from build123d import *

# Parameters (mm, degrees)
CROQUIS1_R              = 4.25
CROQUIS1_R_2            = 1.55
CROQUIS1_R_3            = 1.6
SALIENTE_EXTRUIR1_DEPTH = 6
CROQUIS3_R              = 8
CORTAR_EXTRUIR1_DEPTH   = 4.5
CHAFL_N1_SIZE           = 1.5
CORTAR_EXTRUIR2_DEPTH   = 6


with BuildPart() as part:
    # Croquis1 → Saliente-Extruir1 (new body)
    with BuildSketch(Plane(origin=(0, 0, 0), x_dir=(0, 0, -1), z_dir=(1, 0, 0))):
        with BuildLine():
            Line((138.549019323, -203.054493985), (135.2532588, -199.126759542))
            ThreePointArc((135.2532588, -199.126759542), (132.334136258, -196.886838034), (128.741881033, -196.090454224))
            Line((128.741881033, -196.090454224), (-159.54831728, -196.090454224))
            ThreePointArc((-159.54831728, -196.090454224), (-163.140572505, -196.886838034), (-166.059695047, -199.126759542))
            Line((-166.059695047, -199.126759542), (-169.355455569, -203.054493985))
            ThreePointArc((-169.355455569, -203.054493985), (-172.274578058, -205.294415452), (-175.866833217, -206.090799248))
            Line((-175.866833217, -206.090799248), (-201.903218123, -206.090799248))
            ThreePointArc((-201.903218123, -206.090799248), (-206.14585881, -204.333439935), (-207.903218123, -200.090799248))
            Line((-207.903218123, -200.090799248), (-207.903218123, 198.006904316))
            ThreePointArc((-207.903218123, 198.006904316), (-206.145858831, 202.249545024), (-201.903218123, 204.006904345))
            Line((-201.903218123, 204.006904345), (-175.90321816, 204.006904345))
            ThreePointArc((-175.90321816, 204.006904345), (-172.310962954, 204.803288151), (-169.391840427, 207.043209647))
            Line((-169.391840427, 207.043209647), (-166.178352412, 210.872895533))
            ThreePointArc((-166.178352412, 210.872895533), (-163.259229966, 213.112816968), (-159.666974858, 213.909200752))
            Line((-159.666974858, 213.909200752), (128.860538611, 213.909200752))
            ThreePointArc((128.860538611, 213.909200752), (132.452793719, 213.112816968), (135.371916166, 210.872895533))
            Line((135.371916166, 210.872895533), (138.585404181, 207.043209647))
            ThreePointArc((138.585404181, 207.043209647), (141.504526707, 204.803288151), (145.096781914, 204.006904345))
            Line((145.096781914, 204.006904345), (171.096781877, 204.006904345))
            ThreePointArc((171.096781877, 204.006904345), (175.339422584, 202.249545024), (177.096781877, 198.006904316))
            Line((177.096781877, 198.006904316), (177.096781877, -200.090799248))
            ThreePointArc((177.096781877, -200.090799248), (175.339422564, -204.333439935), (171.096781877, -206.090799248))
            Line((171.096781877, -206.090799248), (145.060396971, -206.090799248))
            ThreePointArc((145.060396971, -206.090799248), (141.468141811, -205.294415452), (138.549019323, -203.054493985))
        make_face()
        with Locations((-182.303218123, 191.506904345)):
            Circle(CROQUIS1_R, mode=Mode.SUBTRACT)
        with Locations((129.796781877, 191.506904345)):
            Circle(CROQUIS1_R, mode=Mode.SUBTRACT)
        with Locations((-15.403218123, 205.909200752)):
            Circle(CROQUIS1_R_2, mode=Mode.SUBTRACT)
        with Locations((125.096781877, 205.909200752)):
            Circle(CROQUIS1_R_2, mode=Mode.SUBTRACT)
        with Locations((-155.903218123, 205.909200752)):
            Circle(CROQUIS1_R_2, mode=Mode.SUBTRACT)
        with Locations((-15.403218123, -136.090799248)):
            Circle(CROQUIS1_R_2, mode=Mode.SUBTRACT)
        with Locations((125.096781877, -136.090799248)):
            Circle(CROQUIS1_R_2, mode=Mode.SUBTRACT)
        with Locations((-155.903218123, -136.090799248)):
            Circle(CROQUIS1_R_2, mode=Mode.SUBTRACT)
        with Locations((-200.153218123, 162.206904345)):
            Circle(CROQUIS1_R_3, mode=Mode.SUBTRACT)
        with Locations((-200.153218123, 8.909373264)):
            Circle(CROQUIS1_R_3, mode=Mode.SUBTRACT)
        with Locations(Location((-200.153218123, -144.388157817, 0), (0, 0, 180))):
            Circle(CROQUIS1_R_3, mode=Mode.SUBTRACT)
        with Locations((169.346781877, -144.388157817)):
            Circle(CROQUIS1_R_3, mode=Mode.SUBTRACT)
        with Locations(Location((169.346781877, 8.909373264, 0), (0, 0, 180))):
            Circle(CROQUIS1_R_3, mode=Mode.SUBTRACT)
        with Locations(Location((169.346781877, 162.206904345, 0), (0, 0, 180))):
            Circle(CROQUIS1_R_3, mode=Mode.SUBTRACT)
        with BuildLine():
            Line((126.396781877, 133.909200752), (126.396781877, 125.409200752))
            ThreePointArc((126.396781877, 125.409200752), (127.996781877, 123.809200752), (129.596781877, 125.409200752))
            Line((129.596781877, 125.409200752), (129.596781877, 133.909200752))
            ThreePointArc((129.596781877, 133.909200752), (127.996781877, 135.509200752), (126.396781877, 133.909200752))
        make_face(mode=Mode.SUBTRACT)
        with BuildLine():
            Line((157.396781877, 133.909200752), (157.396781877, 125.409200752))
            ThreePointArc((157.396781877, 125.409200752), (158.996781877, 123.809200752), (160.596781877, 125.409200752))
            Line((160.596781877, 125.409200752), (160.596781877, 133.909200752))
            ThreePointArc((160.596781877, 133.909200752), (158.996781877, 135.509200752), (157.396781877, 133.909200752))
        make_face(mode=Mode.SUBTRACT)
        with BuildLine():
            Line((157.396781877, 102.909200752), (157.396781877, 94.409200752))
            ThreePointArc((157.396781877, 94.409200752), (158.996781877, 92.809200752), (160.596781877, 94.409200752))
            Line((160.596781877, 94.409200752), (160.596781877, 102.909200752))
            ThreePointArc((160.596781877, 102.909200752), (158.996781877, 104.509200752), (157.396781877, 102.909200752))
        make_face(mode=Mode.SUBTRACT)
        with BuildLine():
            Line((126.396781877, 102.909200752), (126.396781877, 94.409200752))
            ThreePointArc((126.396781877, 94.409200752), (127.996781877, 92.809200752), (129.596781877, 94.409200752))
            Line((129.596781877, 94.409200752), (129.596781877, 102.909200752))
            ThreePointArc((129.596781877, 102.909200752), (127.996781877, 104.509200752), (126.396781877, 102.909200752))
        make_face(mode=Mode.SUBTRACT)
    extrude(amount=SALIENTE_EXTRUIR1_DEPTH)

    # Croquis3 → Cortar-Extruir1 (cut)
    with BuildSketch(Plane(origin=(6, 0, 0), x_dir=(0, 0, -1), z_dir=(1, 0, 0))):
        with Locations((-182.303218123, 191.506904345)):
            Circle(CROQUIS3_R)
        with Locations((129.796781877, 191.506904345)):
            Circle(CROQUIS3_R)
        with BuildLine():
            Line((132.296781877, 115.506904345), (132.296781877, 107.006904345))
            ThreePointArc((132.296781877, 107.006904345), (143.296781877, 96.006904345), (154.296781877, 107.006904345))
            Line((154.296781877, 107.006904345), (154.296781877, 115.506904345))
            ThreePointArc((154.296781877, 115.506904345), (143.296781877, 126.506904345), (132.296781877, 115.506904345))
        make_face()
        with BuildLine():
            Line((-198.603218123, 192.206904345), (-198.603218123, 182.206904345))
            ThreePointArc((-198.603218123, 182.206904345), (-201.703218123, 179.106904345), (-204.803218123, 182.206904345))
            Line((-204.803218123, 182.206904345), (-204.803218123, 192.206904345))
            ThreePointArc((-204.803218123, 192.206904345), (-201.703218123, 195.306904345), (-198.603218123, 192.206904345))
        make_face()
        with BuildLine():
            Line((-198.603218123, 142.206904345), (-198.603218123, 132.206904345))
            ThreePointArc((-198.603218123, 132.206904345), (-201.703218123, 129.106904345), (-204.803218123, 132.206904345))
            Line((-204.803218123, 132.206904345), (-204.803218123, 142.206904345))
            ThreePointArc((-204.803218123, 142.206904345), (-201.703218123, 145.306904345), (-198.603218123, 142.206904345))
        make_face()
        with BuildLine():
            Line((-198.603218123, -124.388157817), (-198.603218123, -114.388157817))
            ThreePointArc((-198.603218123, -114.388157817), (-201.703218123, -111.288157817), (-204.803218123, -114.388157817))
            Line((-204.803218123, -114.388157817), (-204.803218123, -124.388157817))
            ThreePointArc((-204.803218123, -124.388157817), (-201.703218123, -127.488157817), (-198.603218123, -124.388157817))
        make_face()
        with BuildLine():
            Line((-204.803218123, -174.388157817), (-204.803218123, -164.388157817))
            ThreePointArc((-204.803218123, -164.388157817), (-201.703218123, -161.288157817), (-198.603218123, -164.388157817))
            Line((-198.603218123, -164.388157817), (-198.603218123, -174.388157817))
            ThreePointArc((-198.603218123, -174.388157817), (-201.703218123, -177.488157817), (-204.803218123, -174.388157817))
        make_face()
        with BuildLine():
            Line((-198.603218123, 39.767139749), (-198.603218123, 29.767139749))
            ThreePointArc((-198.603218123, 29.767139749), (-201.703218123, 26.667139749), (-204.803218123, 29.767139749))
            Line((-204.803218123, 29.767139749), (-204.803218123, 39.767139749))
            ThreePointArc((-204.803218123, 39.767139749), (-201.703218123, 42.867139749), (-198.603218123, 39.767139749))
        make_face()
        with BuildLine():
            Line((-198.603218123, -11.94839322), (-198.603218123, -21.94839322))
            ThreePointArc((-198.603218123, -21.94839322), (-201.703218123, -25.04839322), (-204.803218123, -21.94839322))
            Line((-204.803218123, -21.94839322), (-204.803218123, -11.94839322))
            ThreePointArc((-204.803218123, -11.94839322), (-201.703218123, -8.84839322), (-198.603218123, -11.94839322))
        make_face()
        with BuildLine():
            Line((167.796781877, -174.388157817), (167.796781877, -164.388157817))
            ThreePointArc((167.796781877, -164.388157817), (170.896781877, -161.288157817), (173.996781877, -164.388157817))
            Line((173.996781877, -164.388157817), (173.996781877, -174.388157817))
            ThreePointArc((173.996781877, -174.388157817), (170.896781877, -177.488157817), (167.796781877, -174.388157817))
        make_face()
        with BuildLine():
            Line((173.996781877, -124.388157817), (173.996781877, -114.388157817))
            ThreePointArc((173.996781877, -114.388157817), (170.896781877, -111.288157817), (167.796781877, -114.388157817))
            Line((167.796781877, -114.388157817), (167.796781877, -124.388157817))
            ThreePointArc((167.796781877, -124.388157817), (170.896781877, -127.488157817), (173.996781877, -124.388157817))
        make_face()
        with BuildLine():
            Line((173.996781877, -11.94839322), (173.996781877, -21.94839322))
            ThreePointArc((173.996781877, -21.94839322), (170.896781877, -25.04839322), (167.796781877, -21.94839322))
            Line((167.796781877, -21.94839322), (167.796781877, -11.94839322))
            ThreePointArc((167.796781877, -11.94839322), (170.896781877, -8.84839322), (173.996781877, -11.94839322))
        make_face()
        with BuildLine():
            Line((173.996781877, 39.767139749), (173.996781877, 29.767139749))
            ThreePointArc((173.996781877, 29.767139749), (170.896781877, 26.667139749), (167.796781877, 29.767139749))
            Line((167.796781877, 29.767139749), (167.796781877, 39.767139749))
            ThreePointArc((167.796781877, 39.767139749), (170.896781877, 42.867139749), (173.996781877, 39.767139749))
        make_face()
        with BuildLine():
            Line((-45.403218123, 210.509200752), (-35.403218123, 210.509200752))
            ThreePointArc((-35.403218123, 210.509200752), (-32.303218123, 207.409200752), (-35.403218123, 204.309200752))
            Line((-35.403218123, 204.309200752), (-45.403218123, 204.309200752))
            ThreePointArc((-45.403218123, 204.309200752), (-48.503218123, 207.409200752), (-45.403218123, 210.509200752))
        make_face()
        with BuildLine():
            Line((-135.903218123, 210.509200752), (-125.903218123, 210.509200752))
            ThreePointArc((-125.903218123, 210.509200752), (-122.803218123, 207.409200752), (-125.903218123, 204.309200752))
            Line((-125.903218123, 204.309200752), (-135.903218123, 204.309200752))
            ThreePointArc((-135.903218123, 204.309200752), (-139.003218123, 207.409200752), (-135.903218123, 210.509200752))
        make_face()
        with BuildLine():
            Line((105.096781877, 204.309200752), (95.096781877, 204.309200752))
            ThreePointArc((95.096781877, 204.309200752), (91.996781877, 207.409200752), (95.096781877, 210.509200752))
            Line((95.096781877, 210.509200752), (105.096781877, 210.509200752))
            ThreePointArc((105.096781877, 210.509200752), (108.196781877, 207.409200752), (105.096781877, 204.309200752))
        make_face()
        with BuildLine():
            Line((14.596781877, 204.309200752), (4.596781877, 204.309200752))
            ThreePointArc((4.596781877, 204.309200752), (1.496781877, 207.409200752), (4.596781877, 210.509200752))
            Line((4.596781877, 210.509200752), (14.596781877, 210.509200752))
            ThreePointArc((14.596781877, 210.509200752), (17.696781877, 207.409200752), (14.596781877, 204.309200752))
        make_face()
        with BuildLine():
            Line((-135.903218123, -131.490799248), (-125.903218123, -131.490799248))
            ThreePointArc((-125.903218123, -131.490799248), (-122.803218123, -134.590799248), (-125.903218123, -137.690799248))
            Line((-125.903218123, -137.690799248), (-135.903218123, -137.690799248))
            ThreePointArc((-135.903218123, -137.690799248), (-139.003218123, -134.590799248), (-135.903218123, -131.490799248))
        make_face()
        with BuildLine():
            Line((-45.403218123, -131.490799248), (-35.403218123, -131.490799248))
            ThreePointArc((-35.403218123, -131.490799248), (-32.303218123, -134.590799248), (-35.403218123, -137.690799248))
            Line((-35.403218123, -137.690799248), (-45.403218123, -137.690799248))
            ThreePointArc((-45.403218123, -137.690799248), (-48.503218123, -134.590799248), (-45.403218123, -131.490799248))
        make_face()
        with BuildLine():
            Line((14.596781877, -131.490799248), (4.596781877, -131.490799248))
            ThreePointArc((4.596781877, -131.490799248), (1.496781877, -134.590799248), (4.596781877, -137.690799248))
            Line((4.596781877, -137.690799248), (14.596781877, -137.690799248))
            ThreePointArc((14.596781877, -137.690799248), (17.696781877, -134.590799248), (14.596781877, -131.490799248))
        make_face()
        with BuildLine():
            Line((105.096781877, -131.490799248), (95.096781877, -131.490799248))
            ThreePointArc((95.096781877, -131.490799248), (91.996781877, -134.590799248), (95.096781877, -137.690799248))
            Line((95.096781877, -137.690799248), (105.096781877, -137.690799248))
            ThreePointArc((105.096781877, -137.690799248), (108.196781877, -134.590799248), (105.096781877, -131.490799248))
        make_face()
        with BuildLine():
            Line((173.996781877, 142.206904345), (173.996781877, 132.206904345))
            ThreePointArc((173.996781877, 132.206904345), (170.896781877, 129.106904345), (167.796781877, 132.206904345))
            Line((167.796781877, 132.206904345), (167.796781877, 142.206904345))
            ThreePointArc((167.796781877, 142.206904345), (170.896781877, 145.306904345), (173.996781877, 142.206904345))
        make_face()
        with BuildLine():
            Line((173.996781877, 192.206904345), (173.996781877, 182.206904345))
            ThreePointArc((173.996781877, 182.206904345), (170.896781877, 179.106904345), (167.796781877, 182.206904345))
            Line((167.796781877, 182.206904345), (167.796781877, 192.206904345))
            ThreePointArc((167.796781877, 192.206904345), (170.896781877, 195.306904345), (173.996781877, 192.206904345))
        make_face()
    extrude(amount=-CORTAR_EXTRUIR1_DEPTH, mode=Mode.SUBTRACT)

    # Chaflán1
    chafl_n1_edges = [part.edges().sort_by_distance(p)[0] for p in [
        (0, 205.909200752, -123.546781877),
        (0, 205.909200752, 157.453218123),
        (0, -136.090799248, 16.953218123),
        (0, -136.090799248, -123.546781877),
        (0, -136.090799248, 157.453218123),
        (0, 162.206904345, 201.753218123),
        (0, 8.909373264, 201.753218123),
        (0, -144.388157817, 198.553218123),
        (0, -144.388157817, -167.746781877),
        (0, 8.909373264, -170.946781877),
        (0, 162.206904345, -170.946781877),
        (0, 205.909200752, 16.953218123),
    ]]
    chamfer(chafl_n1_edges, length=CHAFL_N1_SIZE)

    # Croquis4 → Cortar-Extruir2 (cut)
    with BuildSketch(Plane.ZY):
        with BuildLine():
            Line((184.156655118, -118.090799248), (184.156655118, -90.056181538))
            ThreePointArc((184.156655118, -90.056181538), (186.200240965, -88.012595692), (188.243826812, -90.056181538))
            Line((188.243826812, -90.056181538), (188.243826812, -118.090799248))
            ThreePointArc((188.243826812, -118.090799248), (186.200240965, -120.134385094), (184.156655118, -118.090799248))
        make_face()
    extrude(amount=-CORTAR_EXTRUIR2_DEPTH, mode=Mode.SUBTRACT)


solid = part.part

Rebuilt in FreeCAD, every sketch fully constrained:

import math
import FreeCAD as App
import Part
import Sketcher
Q = App.Units.Quantity


def edges_at(feature, points):
    """Names of the edges that pass closest to the given points."""
    edges = feature.Shape.Edges
    near = lambda p: min(range(len(edges)), key=lambda i: edges[i].distToShape(Part.Vertex(*p))[0])
    return sorted({f"Edge{near(p) + 1}" for p in points})

doc = App.newDocument("Part")
body = doc.addObject("PartDesign::Body", "Body")

# Sketch on YZ plane
sketch1 = body.newObject("Sketcher::SketchObject", "Sketch")
sketch1.AttachmentSupport = (doc.getObject("YZ_Plane"), [""])
sketch1.MapMode = "FlatFace"
sketch1.addGeometry([
    Part.LineSegment(App.Vector(-199.1, -135.3, 0), App.Vector(-203.1, -138.5, 0)),  # 0
    Part.ArcOfCircle(Part.Circle(App.Vector(-197.6, -145.1, 0), App.Vector(0, 0, 1), 8.5), math.radians(130), math.radians(180)),  # 1
    Part.LineSegment(App.Vector(-206.1, -145.1, 0), App.Vector(-206.1, -171.1, 0)),  # 2
    Part.ArcOfCircle(Part.Circle(App.Vector(-200.1, -171.1, 0), App.Vector(0, 0, 1), 6), math.radians(180), math.radians(270)),  # 3
    Part.LineSegment(App.Vector(-200.1, -177.1, 0), App.Vector(198, -177.1, 0)),  # 4
    Part.ArcOfCircle(Part.Circle(App.Vector(198, -171.1, 0), App.Vector(0, 0, 1), 6), math.radians(-90), math.radians(0)),  # 5
    Part.LineSegment(App.Vector(204, -171.1, 0), App.Vector(204, -145.1, 0)),  # 6
    Part.ArcOfCircle(Part.Circle(App.Vector(212.5, -145.1, 0), App.Vector(0, 0, 1), 8.5), math.radians(130), math.radians(180)),  # 7
    Part.LineSegment(App.Vector(207, -138.6, 0), App.Vector(210.9, -135.4, 0)),  # 8
    Part.ArcOfCircle(Part.Circle(App.Vector(205.4, -128.9, 0), App.Vector(0, 0, 1), 8.5), math.radians(-50), math.radians(0)),  # 9
    Part.LineSegment(App.Vector(213.9, -128.9, 0), App.Vector(213.9, 159.7, 0)),  # 10
    Part.ArcOfCircle(Part.Circle(App.Vector(205.4, 159.7, 0), App.Vector(0, 0, 1), 8.5), math.radians(0), math.radians(50)),  # 11
    Part.LineSegment(App.Vector(210.9, 166.2, 0), App.Vector(207, 169.4, 0)),  # 12
    Part.ArcOfCircle(Part.Circle(App.Vector(212.5, 175.9, 0), App.Vector(0, 0, 1), 8.5), math.radians(180), math.radians(230)),  # 13
    Part.LineSegment(App.Vector(204, 175.9, 0), App.Vector(204, 201.9, 0)),  # 14
    Part.ArcOfCircle(Part.Circle(App.Vector(198, 201.9, 0), App.Vector(0, 0, 1), 6), math.radians(0), math.radians(90)),  # 15
    Part.LineSegment(App.Vector(198, 207.9, 0), App.Vector(-200.1, 207.9, 0)),  # 16
    Part.ArcOfCircle(Part.Circle(App.Vector(-200.1, 201.9, 0), App.Vector(0, 0, 1), 6), math.radians(90), math.radians(180)),  # 17
    Part.LineSegment(App.Vector(-206.1, 201.9, 0), App.Vector(-206.1, 175.9, 0)),  # 18
    Part.ArcOfCircle(Part.Circle(App.Vector(-197.6, 175.9, 0), App.Vector(0, 0, 1), 8.5), math.radians(-180), math.radians(-130)),  # 19
    Part.LineSegment(App.Vector(-203.1, 169.4, 0), App.Vector(-199.1, 166.1, 0)),  # 20
    Part.ArcOfCircle(Part.Circle(App.Vector(-204.6, 159.5, 0), App.Vector(0, 0, 1), 8.5), math.radians(0), math.radians(50)),  # 21
    Part.LineSegment(App.Vector(-196.1, 159.5, 0), App.Vector(-196.1, -128.7, 0)),  # 22
    Part.ArcOfCircle(Part.Circle(App.Vector(-204.6, -128.7, 0), App.Vector(0, 0, 1), 8.5), math.radians(-50), math.radians(0)),  # 23
    Part.Circle(App.Vector(-144.4, -169.3, 0), App.Vector(0, 0, 1), 1.6),  # 24
    Part.Circle(App.Vector(-136.1, -125.1, 0), App.Vector(0, 0, 1), 1.6),  # 25
    Part.Circle(App.Vector(8.9, -169.3, 0), App.Vector(0, 0, 1), 1.6),  # 26
    Part.Circle(App.Vector(-136.1, 15.4, 0), App.Vector(0, 0, 1), 1.6),  # 27
    Part.Circle(App.Vector(-136.1, 155.9, 0), App.Vector(0, 0, 1), 1.6),  # 28
    Part.Circle(App.Vector(-144.4, 200.2, 0), App.Vector(0, 0, 1), 1.6),  # 29
    Part.Circle(App.Vector(8.9, 200.2, 0), App.Vector(0, 0, 1), 1.6),  # 30
    Part.ArcOfCircle(Part.Circle(App.Vector(102.9, -159, 0), App.Vector(0, 0, 1), 1.6), math.radians(-90), math.radians(90)),  # 31
    Part.LineSegment(App.Vector(102.9, -160.6, 0), App.Vector(94.4, -160.6, 0)),  # 32
    Part.ArcOfCircle(Part.Circle(App.Vector(94.4, -159, 0), App.Vector(0, 0, 1), 1.6), math.radians(90), math.radians(270)),  # 33
    Part.LineSegment(App.Vector(94.4, -157.4, 0), App.Vector(102.9, -157.4, 0)),  # 34
    Part.ArcOfCircle(Part.Circle(App.Vector(102.9, -128, 0), App.Vector(0, 0, 1), 1.6), math.radians(-90), math.radians(90)),  # 35
    Part.LineSegment(App.Vector(102.9, -129.6, 0), App.Vector(94.4, -129.6, 0)),  # 36
    Part.ArcOfCircle(Part.Circle(App.Vector(94.4, -128, 0), App.Vector(0, 0, 1), 1.6), math.radians(90), math.radians(270)),  # 37
    Part.LineSegment(App.Vector(94.4, -126.4, 0), App.Vector(102.9, -126.4, 0)),  # 38
    Part.ArcOfCircle(Part.Circle(App.Vector(133.9, -159, 0), App.Vector(0, 0, 1), 1.6), math.radians(-90), math.radians(90)),  # 39
    Part.LineSegment(App.Vector(133.9, -160.6, 0), App.Vector(125.4, -160.6, 0)),  # 40
    Part.ArcOfCircle(Part.Circle(App.Vector(125.4, -159, 0), App.Vector(0, 0, 1), 1.6), math.radians(90), math.radians(270)),  # 41
    Part.LineSegment(App.Vector(125.4, -157.4, 0), App.Vector(133.9, -157.4, 0)),  # 42
    Part.ArcOfCircle(Part.Circle(App.Vector(133.9, -128, 0), App.Vector(0, 0, 1), 1.6), math.radians(-90), math.radians(90)),  # 43
    Part.LineSegment(App.Vector(133.9, -129.6, 0), App.Vector(125.4, -129.6, 0)),  # 44
    Part.ArcOfCircle(Part.Circle(App.Vector(125.4, -128, 0), App.Vector(0, 0, 1), 1.6), math.radians(90), math.radians(270)),  # 45
    Part.LineSegment(App.Vector(125.4, -126.4, 0), App.Vector(133.9, -126.4, 0)),  # 46
    Part.Circle(App.Vector(162.2, -169.3, 0), App.Vector(0, 0, 1), 1.6),  # 47
    Part.Circle(App.Vector(191.5, -129.8, 0), App.Vector(0, 0, 1), 4.2),  # 48
    Part.Circle(App.Vector(205.9, -125.1, 0), App.Vector(0, 0, 1), 1.6),  # 49
    Part.Circle(App.Vector(205.9, 15.4, 0), App.Vector(0, 0, 1), 1.6),  # 50
    Part.Circle(App.Vector(162.2, 200.2, 0), App.Vector(0, 0, 1), 1.6),  # 51
    Part.Circle(App.Vector(205.9, 155.9, 0), App.Vector(0, 0, 1), 1.6),  # 52
    Part.Circle(App.Vector(191.5, 182.3, 0), App.Vector(0, 0, 1), 4.2),  # 53
], False)
sketch1.addConstraint([
    Sketcher.Constraint("Tangent", 0, 2, 1, 1),
    Sketcher.Constraint("Tangent", 1, 2, 2, 1),
    Sketcher.Constraint("Tangent", 2, 2, 3, 1),
    Sketcher.Constraint("Tangent", 3, 2, 4, 1),
    Sketcher.Constraint("Tangent", 4, 2, 5, 1),
    Sketcher.Constraint("Tangent", 5, 2, 6, 1),
    Sketcher.Constraint("Tangent", 6, 2, 7, 2),
    Sketcher.Constraint("Tangent", 7, 1, 8, 1),
    Sketcher.Constraint("Tangent", 8, 2, 9, 1),
    Sketcher.Constraint("Tangent", 9, 2, 10, 1),
    Sketcher.Constraint("Tangent", 10, 2, 11, 1),
    Sketcher.Constraint("Tangent", 11, 2, 12, 1),
    Sketcher.Constraint("Tangent", 12, 2, 13, 2),
    Sketcher.Constraint("Tangent", 13, 1, 14, 1),
    Sketcher.Constraint("Tangent", 14, 2, 15, 1),
    Sketcher.Constraint("Tangent", 15, 2, 16, 1),
    Sketcher.Constraint("Tangent", 16, 2, 17, 1),
    Sketcher.Constraint("Tangent", 17, 2, 18, 1),
    Sketcher.Constraint("Tangent", 18, 2, 19, 1),
    Sketcher.Constraint("Tangent", 19, 2, 20, 1),
    Sketcher.Constraint("Tangent", 20, 2, 21, 2),
    Sketcher.Constraint("Tangent", 21, 1, 22, 1),
    Sketcher.Constraint("Tangent", 22, 2, 23, 2),
    Sketcher.Constraint("Tangent", 23, 1, 0, 1),
    Sketcher.Constraint("Tangent", 31, 1, 32, 1),
    Sketcher.Constraint("Tangent", 32, 2, 33, 2),
    Sketcher.Constraint("Tangent", 33, 1, 34, 1),
    Sketcher.Constraint("Tangent", 34, 2, 31, 2),
    Sketcher.Constraint("Tangent", 35, 1, 36, 1),
    Sketcher.Constraint("Tangent", 36, 2, 37, 2),
    Sketcher.Constraint("Tangent", 37, 1, 38, 1),
    Sketcher.Constraint("Tangent", 38, 2, 35, 2),
    Sketcher.Constraint("Tangent", 39, 1, 40, 1),
    Sketcher.Constraint("Tangent", 40, 2, 41, 2),
    Sketcher.Constraint("Tangent", 41, 1, 42, 1),
    Sketcher.Constraint("Tangent", 42, 2, 39, 2),
    Sketcher.Constraint("Tangent", 43, 1, 44, 1),
    Sketcher.Constraint("Tangent", 44, 2, 45, 2),
    Sketcher.Constraint("Tangent", 45, 1, 46, 1),
    Sketcher.Constraint("Tangent", 46, 2, 43, 2),
    Sketcher.Constraint("Vertical", 2),
    Sketcher.Constraint("Horizontal", 4),
    Sketcher.Constraint("Vertical", 6),
    Sketcher.Constraint("Vertical", 10),
    Sketcher.Constraint("Vertical", 14),
    Sketcher.Constraint("Horizontal", 16),
    Sketcher.Constraint("Vertical", 18),
    Sketcher.Constraint("Vertical", 22),
    Sketcher.Constraint("Horizontal", 32),
    Sketcher.Constraint("Horizontal", 34),
    Sketcher.Constraint("Horizontal", 36),
    Sketcher.Constraint("Horizontal", 38),
    Sketcher.Constraint("Horizontal", 40),
    Sketcher.Constraint("Horizontal", 42),
    Sketcher.Constraint("Horizontal", 44),
    Sketcher.Constraint("Horizontal", 46),
    Sketcher.Constraint("Equal", 3, 5),
    Sketcher.Constraint("Equal", 1, 7),
    Sketcher.Constraint("Equal", 7, 9),
    Sketcher.Constraint("Equal", 9, 11),
    Sketcher.Constraint("Equal", 11, 13),
    Sketcher.Constraint("Equal", 5, 15),
    Sketcher.Constraint("Equal", 15, 17),
    Sketcher.Constraint("Equal", 13, 19),
    Sketcher.Constraint("Equal", 19, 21),
    Sketcher.Constraint("Equal", 21, 23),
    Sketcher.Constraint("Equal", 24, 26),
    Sketcher.Constraint("Equal", 25, 27),
    Sketcher.Constraint("Equal", 27, 28),
    Sketcher.Constraint("Equal", 26, 29),
    Sketcher.Constraint("Equal", 29, 30),
    Sketcher.Constraint("Equal", 30, 31),
    Sketcher.Constraint("Equal", 33, 35),
    Sketcher.Constraint("Equal", 37, 39),
    Sketcher.Constraint("Equal", 41, 43),
    Sketcher.Constraint("Equal", 45, 47),
    Sketcher.Constraint("Equal", 28, 49),
    Sketcher.Constraint("Equal", 49, 50),
    Sketcher.Constraint("Equal", 47, 51),
    Sketcher.Constraint("Equal", 50, 52),
    Sketcher.Constraint("Equal", 48, 53),
    Sketcher.Constraint("Parallel", 0, 8),
    Sketcher.Constraint("Parallel", 12, 20),
    Sketcher.Constraint("Horizontal", 24, 3, 26, 3),
    Sketcher.Constraint("Horizontal", 29, 3, 30, 3),
    Sketcher.Constraint("Horizontal", 33, 3, 39, 3),
    Sketcher.Constraint("Horizontal", 37, 3, 43, 3),
    Sketcher.Constraint("Horizontal", 26, 3, 47, 3),
    Sketcher.Constraint("Horizontal", 25, 3, 49, 3),
    Sketcher.Constraint("Horizontal", 27, 3, 50, 3),
    Sketcher.Constraint("Horizontal", 30, 3, 51, 3),
    Sketcher.Constraint("Horizontal", 28, 3, 52, 3),
    Sketcher.Constraint("Vertical", 7, 3, 13, 3),
    Sketcher.Constraint("Vertical", 3, 3, 17, 3),
    Sketcher.Constraint("Vertical", 25, 3, 27, 3),
    Sketcher.Constraint("Vertical", 27, 3, 28, 3),
    Sketcher.Constraint("Vertical", 24, 3, 29, 3),
    Sketcher.Constraint("Vertical", 26, 3, 30, 3),
    Sketcher.Constraint("Vertical", 31, 3, 35, 3),
    Sketcher.Constraint("Vertical", 33, 3, 37, 3),
    Sketcher.Constraint("Vertical", 39, 3, 43, 3),
    Sketcher.Constraint("Vertical", 41, 3, 45, 3),
    Sketcher.Constraint("Vertical", 49, 3, 50, 3),
    Sketcher.Constraint("Vertical", 47, 3, 51, 3),
    Sketcher.Constraint("Vertical", 50, 3, 52, 3),
    Sketcher.Constraint("Vertical", 48, 3, 53, 3),
    Sketcher.Constraint("Vertical", 8, 2, 11, 2),
    Sketcher.Constraint("Equal", 38, 40),
    Sketcher.Constraint("Equal", 6, 14),
    Sketcher.Constraint("Equal", 2, 18),
    Sketcher.Constraint("Radius", 3, 6.0),
    Sketcher.Constraint("Diameter", 24, 3.2),
    Sketcher.Constraint("Diameter", 25, 3.1),
    Sketcher.Constraint("Diameter", 48, 8.5),
    Sketcher.Constraint("Radius", 1, 8.5),
    Sketcher.Constraint("DistanceY", 6, 1, 6, 2, 26.0),
    Sketcher.Constraint("Angle", 0, Q("-140 deg")),
    Sketcher.Constraint("DistanceX", 32, 2, 32, 1, 8.5),
    Sketcher.Constraint("DistanceY", 22, 2, 22, 1, 288.290198),
    Sketcher.Constraint("Distance", 8, 4.9993),
    Sketcher.Constraint("DistanceX", 1, 3, -1, 1, 197.590799),
    Sketcher.Constraint("DistanceX", -1, 1, 9, 3, 205.409201),
    Sketcher.Constraint("DistanceX", 25, 3, -1, 1, 136.090799),
    Sketcher.Constraint("DistanceX", -1, 1, 31, 3, 102.909201),
    Sketcher.Constraint("DistanceX", -1, 1, 39, 3, 133.909201),
    Sketcher.Constraint("DistanceX", -1, 1, 49, 3, 205.909201),
    Sketcher.Constraint("DistanceY", 2, 2, 2, 1, 26.036385),
    Sketcher.Constraint("DistanceY", 10, 1, 10, 2, 288.527513),
    Sketcher.Constraint("DistanceY", 3, 3, -1, 1, 171.096782),
    Sketcher.Constraint("DistanceY", 24, 3, -1, 1, 169.346782),
    Sketcher.Constraint("DistanceY", 25, 3, -1, 1, 125.096782),
    Sketcher.Constraint("DistanceY", -1, 1, 27, 3, 15.403218),
    Sketcher.Constraint("DistanceY", -1, 1, 28, 3, 155.903218),
    Sketcher.Constraint("DistanceY", -1, 1, 29, 3, 200.153218),
    Sketcher.Constraint("DistanceY", 31, 3, -1, 1, 158.996782),
    Sketcher.Constraint("DistanceY", 35, 3, -1, 1, 127.996782),
    Sketcher.Constraint("DistanceY", 48, 3, -1, 1, 129.796782),
    Sketcher.Constraint("DistanceY", -1, 1, 53, 3, 182.303218),
    Sketcher.Constraint("DistanceX", 24, 3, -1, 1, 144.388158),
    Sketcher.Constraint("DistanceX", -1, 1, 26, 3, 8.909373),
    Sketcher.Constraint("DistanceX", -1, 1, 47, 3, 162.206904),
    Sketcher.Constraint("DistanceX", -1, 1, 48, 3, 191.506904),
])
pad1 = body.newObject("PartDesign::Pad", "Pad")
pad1.Profile = sketch1
pad1.Length = 6

# Sketch on YZ plane
sketch2 = body.newObject("Sketcher::SketchObject", "Sketch001")
sketch2.AttachmentSupport = (doc.getObject("YZ_Plane"), [""])
sketch2.MapMode = "FlatFace"
sketch2.AttachmentOffset = App.Placement(App.Vector(0, 0, 6), App.Rotation())
sketch2.addGeometry([
    Part.Circle(App.Vector(191.5, 182.3, 0), App.Vector(0, 0, 1), 8),  # 0
    Part.Circle(App.Vector(191.5, -129.8, 0), App.Vector(0, 0, 1), 8),  # 1
    Part.LineSegment(App.Vector(115.5, -132.3, 0), App.Vector(107, -132.3, 0)),  # 2
    Part.ArcOfCircle(Part.Circle(App.Vector(107, -143.3, 0), App.Vector(0, 0, 1), 11), math.radians(90), math.radians(270)),  # 3
    Part.LineSegment(App.Vector(107, -154.3, 0), App.Vector(115.5, -154.3, 0)),  # 4
    Part.ArcOfCircle(Part.Circle(App.Vector(115.5, -143.3, 0), App.Vector(0, 0, 1), 11), math.radians(-90), math.radians(90)),  # 5
    Part.LineSegment(App.Vector(182.2, 198.6, 0), App.Vector(192.2, 198.6, 0)),  # 6
    Part.ArcOfCircle(Part.Circle(App.Vector(192.2, 201.7, 0), App.Vector(0, 0, 1), 3.1), math.radians(-90), math.radians(90)),  # 7
    Part.LineSegment(App.Vector(192.2, 204.8, 0), App.Vector(182.2, 204.8, 0)),  # 8
    Part.ArcOfCircle(Part.Circle(App.Vector(182.2, 201.7, 0), App.Vector(0, 0, 1), 3.1), math.radians(90), math.radians(270)),  # 9
    Part.LineSegment(App.Vector(132.2, 198.6, 0), App.Vector(142.2, 198.6, 0)),  # 10
    Part.ArcOfCircle(Part.Circle(App.Vector(142.2, 201.7, 0), App.Vector(0, 0, 1), 3.1), math.radians(-90), math.radians(90)),  # 11
    Part.LineSegment(App.Vector(142.2, 204.8, 0), App.Vector(132.2, 204.8, 0)),  # 12
    Part.ArcOfCircle(Part.Circle(App.Vector(132.2, 201.7, 0), App.Vector(0, 0, 1), 3.1), math.radians(90), math.radians(270)),  # 13
    Part.LineSegment(App.Vector(-124.4, 198.6, 0), App.Vector(-114.4, 198.6, 0)),  # 14
    Part.ArcOfCircle(Part.Circle(App.Vector(-114.4, 201.7, 0), App.Vector(0, 0, 1), 3.1), math.radians(-90), math.radians(90)),  # 15
    Part.LineSegment(App.Vector(-114.4, 204.8, 0), App.Vector(-124.4, 204.8, 0)),  # 16
    Part.ArcOfCircle(Part.Circle(App.Vector(-124.4, 201.7, 0), App.Vector(0, 0, 1), 3.1), math.radians(90), math.radians(270)),  # 17
    Part.LineSegment(App.Vector(-164.4, 204.8, 0), App.Vector(-174.4, 204.8, 0)),  # 18
    Part.ArcOfCircle(Part.Circle(App.Vector(-174.4, 201.7, 0), App.Vector(0, 0, 1), 3.1), math.radians(90), math.radians(270)),  # 19
    Part.LineSegment(App.Vector(-174.4, 198.6, 0), App.Vector(-164.4, 198.6, 0)),  # 20
    Part.ArcOfCircle(Part.Circle(App.Vector(-164.4, 201.7, 0), App.Vector(0, 0, 1), 3.1), math.radians(-90), math.radians(90)),  # 21
    Part.LineSegment(App.Vector(29.8, 198.6, 0), App.Vector(39.8, 198.6, 0)),  # 22
    Part.ArcOfCircle(Part.Circle(App.Vector(39.8, 201.7, 0), App.Vector(0, 0, 1), 3.1), math.radians(-90), math.radians(90)),  # 23
    Part.LineSegment(App.Vector(39.8, 204.8, 0), App.Vector(29.8, 204.8, 0)),  # 24
    Part.ArcOfCircle(Part.Circle(App.Vector(29.8, 201.7, 0), App.Vector(0, 0, 1), 3.1), math.radians(90), math.radians(270)),  # 25
    Part.LineSegment(App.Vector(-21.9, 198.6, 0), App.Vector(-11.9, 198.6, 0)),  # 26
    Part.ArcOfCircle(Part.Circle(App.Vector(-11.9, 201.7, 0), App.Vector(0, 0, 1), 3.1), math.radians(-90), math.radians(90)),  # 27
    Part.LineSegment(App.Vector(-11.9, 204.8, 0), App.Vector(-21.9, 204.8, 0)),  # 28
    Part.ArcOfCircle(Part.Circle(App.Vector(-21.9, 201.7, 0), App.Vector(0, 0, 1), 3.1), math.radians(90), math.radians(270)),  # 29
    Part.LineSegment(App.Vector(-164.4, -167.8, 0), App.Vector(-174.4, -167.8, 0)),  # 30
    Part.ArcOfCircle(Part.Circle(App.Vector(-174.4, -170.9, 0), App.Vector(0, 0, 1), 3.1), math.radians(90), math.radians(270)),  # 31
    Part.LineSegment(App.Vector(-174.4, -174, 0), App.Vector(-164.4, -174, 0)),  # 32
    Part.ArcOfCircle(Part.Circle(App.Vector(-164.4, -170.9, 0), App.Vector(0, 0, 1), 3.1), math.radians(-90), math.radians(90)),  # 33
    Part.LineSegment(App.Vector(-124.4, -174, 0), App.Vector(-114.4, -174, 0)),  # 34
    Part.ArcOfCircle(Part.Circle(App.Vector(-114.4, -170.9, 0), App.Vector(0, 0, 1), 3.1), math.radians(-90), math.radians(90)),  # 35
    Part.LineSegment(App.Vector(-114.4, -167.8, 0), App.Vector(-124.4, -167.8, 0)),  # 36
    Part.ArcOfCircle(Part.Circle(App.Vector(-124.4, -170.9, 0), App.Vector(0, 0, 1), 3.1), math.radians(90), math.radians(270)),  # 37
    Part.LineSegment(App.Vector(-21.9, -174, 0), App.Vector(-11.9, -174, 0)),  # 38
    Part.ArcOfCircle(Part.Circle(App.Vector(-11.9, -170.9, 0), App.Vector(0, 0, 1), 3.1), math.radians(-90), math.radians(90)),  # 39
    Part.LineSegment(App.Vector(-11.9, -167.8, 0), App.Vector(-21.9, -167.8, 0)),  # 40
    Part.ArcOfCircle(Part.Circle(App.Vector(-21.9, -170.9, 0), App.Vector(0, 0, 1), 3.1), math.radians(90), math.radians(270)),  # 41
    Part.LineSegment(App.Vector(29.8, -174, 0), App.Vector(39.8, -174, 0)),  # 42
    Part.ArcOfCircle(Part.Circle(App.Vector(39.8, -170.9, 0), App.Vector(0, 0, 1), 3.1), math.radians(-90), math.radians(90)),  # 43
    Part.LineSegment(App.Vector(39.8, -167.8, 0), App.Vector(29.8, -167.8, 0)),  # 44
    Part.ArcOfCircle(Part.Circle(App.Vector(29.8, -170.9, 0), App.Vector(0, 0, 1), 3.1), math.radians(90), math.radians(270)),  # 45
    Part.LineSegment(App.Vector(210.5, 35.4, 0), App.Vector(210.5, 45.4, 0)),  # 46
    Part.ArcOfCircle(Part.Circle(App.Vector(207.4, 45.4, 0), App.Vector(0, 0, 1), 3.1), math.radians(0), math.radians(180)),  # 47
    Part.LineSegment(App.Vector(204.3, 45.4, 0), App.Vector(204.3, 35.4, 0)),  # 48
    Part.ArcOfCircle(Part.Circle(App.Vector(207.4, 35.4, 0), App.Vector(0, 0, 1), 3.1), math.radians(180), math.radians(360)),  # 49
    Part.LineSegment(App.Vector(210.5, 125.9, 0), App.Vector(210.5, 135.9, 0)),  # 50
    Part.ArcOfCircle(Part.Circle(App.Vector(207.4, 135.9, 0), App.Vector(0, 0, 1), 3.1), math.radians(0), math.radians(180)),  # 51
    Part.LineSegment(App.Vector(204.3, 135.9, 0), App.Vector(204.3, 125.9, 0)),  # 52
    Part.ArcOfCircle(Part.Circle(App.Vector(207.4, 125.9, 0), App.Vector(0, 0, 1), 3.1), math.radians(180), math.radians(360)),  # 53
    Part.LineSegment(App.Vector(204.3, -95.1, 0), App.Vector(204.3, -105.1, 0)),  # 54
    Part.ArcOfCircle(Part.Circle(App.Vector(207.4, -105.1, 0), App.Vector(0, 0, 1), 3.1), math.radians(180), math.radians(360)),  # 55
    Part.LineSegment(App.Vector(210.5, -105.1, 0), App.Vector(210.5, -95.1, 0)),  # 56
    Part.ArcOfCircle(Part.Circle(App.Vector(207.4, -95.1, 0), App.Vector(0, 0, 1), 3.1), math.radians(0), math.radians(180)),  # 57
    Part.LineSegment(App.Vector(204.3, -4.6, 0), App.Vector(204.3, -14.6, 0)),  # 58
    Part.ArcOfCircle(Part.Circle(App.Vector(207.4, -14.6, 0), App.Vector(0, 0, 1), 3.1), math.radians(180), math.radians(360)),  # 59
    Part.LineSegment(App.Vector(210.5, -14.6, 0), App.Vector(210.5, -4.6, 0)),  # 60
    Part.ArcOfCircle(Part.Circle(App.Vector(207.4, -4.6, 0), App.Vector(0, 0, 1), 3.1), math.radians(0), math.radians(180)),  # 61
    Part.LineSegment(App.Vector(-131.5, 125.9, 0), App.Vector(-131.5, 135.9, 0)),  # 62
    Part.ArcOfCircle(Part.Circle(App.Vector(-134.6, 135.9, 0), App.Vector(0, 0, 1), 3.1), math.radians(0), math.radians(180)),  # 63
    Part.LineSegment(App.Vector(-137.7, 135.9, 0), App.Vector(-137.7, 125.9, 0)),  # 64
    Part.ArcOfCircle(Part.Circle(App.Vector(-134.6, 125.9, 0), App.Vector(0, 0, 1), 3.1), math.radians(180), math.radians(360)),  # 65
    Part.LineSegment(App.Vector(-131.5, 35.4, 0), App.Vector(-131.5, 45.4, 0)),  # 66
    Part.ArcOfCircle(Part.Circle(App.Vector(-134.6, 45.4, 0), App.Vector(0, 0, 1), 3.1), math.radians(0), math.radians(180)),  # 67
    Part.LineSegment(App.Vector(-137.7, 45.4, 0), App.Vector(-137.7, 35.4, 0)),  # 68
    Part.ArcOfCircle(Part.Circle(App.Vector(-134.6, 35.4, 0), App.Vector(0, 0, 1), 3.1), math.radians(180), math.radians(360)),  # 69
    Part.LineSegment(App.Vector(-131.5, -14.6, 0), App.Vector(-131.5, -4.6, 0)),  # 70
    Part.ArcOfCircle(Part.Circle(App.Vector(-134.6, -4.6, 0), App.Vector(0, 0, 1), 3.1), math.radians(0), math.radians(180)),  # 71
    Part.LineSegment(App.Vector(-137.7, -4.6, 0), App.Vector(-137.7, -14.6, 0)),  # 72
    Part.ArcOfCircle(Part.Circle(App.Vector(-134.6, -14.6, 0), App.Vector(0, 0, 1), 3.1), math.radians(180), math.radians(360)),  # 73
    Part.LineSegment(App.Vector(-131.5, -105.1, 0), App.Vector(-131.5, -95.1, 0)),  # 74
    Part.ArcOfCircle(Part.Circle(App.Vector(-134.6, -95.1, 0), App.Vector(0, 0, 1), 3.1), math.radians(0), math.radians(180)),  # 75
    Part.LineSegment(App.Vector(-137.7, -95.1, 0), App.Vector(-137.7, -105.1, 0)),  # 76
    Part.ArcOfCircle(Part.Circle(App.Vector(-134.6, -105.1, 0), App.Vector(0, 0, 1), 3.1), math.radians(180), math.radians(360)),  # 77
    Part.LineSegment(App.Vector(132.2, -174, 0), App.Vector(142.2, -174, 0)),  # 78
    Part.ArcOfCircle(Part.Circle(App.Vector(142.2, -170.9, 0), App.Vector(0, 0, 1), 3.1), math.radians(-90), math.radians(90)),  # 79
    Part.LineSegment(App.Vector(142.2, -167.8, 0), App.Vector(132.2, -167.8, 0)),  # 80
    Part.ArcOfCircle(Part.Circle(App.Vector(132.2, -170.9, 0), App.Vector(0, 0, 1), 3.1), math.radians(90), math.radians(270)),  # 81
    Part.LineSegment(App.Vector(182.2, -174, 0), App.Vector(192.2, -174, 0)),  # 82
    Part.ArcOfCircle(Part.Circle(App.Vector(192.2, -170.9, 0), App.Vector(0, 0, 1), 3.1), math.radians(-90), math.radians(90)),  # 83
    Part.LineSegment(App.Vector(192.2, -167.8, 0), App.Vector(182.2, -167.8, 0)),  # 84
    Part.ArcOfCircle(Part.Circle(App.Vector(182.2, -170.9, 0), App.Vector(0, 0, 1), 3.1), math.radians(90), math.radians(270)),  # 85
], False)
sketch2.addConstraint([
    Sketcher.Constraint("Tangent", 2, 2, 3, 1),
    Sketcher.Constraint("Tangent", 3, 2, 4, 1),
    Sketcher.Constraint("Tangent", 4, 2, 5, 1),
    Sketcher.Constraint("Tangent", 5, 2, 2, 1),
    Sketcher.Constraint("Tangent", 6, 2, 7, 1),
    Sketcher.Constraint("Tangent", 7, 2, 8, 1),
    Sketcher.Constraint("Tangent", 8, 2, 9, 1),
    Sketcher.Constraint("Tangent", 9, 2, 6, 1),
    Sketcher.Constraint("Tangent", 10, 2, 11, 1),
    Sketcher.Constraint("Tangent", 11, 2, 12, 1),
    Sketcher.Constraint("Tangent", 12, 2, 13, 1),
    Sketcher.Constraint("Tangent", 13, 2, 10, 1),
    Sketcher.Constraint("Tangent", 14, 2, 15, 1),
    Sketcher.Constraint("Tangent", 15, 2, 16, 1),
    Sketcher.Constraint("Tangent", 16, 2, 17, 1),
    Sketcher.Constraint("Tangent", 17, 2, 14, 1),
    Sketcher.Constraint("Tangent", 18, 2, 19, 1),
    Sketcher.Constraint("Tangent", 19, 2, 20, 1),
    Sketcher.Constraint("Tangent", 20, 2, 21, 1),
    Sketcher.Constraint("Tangent", 21, 2, 18, 1),
    Sketcher.Constraint("Tangent", 22, 2, 23, 1),
    Sketcher.Constraint("Tangent", 23, 2, 24, 1),
    Sketcher.Constraint("Tangent", 24, 2, 25, 1),
    Sketcher.Constraint("Tangent", 25, 2, 22, 1),
    Sketcher.Constraint("Tangent", 26, 2, 27, 1),
    Sketcher.Constraint("Tangent", 27, 2, 28, 1),
    Sketcher.Constraint("Tangent", 28, 2, 29, 1),
    Sketcher.Constraint("Tangent", 29, 2, 26, 1),
    Sketcher.Constraint("Tangent", 30, 2, 31, 1),
    Sketcher.Constraint("Tangent", 31, 2, 32, 1),
    Sketcher.Constraint("Tangent", 32, 2, 33, 1),
    Sketcher.Constraint("Tangent", 33, 2, 30, 1),
    Sketcher.Constraint("Tangent", 34, 2, 35, 1),
    Sketcher.Constraint("Tangent", 35, 2, 36, 1),
    Sketcher.Constraint("Tangent", 36, 2, 37, 1),
    Sketcher.Constraint("Tangent", 37, 2, 34, 1),
    Sketcher.Constraint("Tangent", 38, 2, 39, 1),
    Sketcher.Constraint("Tangent", 39, 2, 40, 1),
    Sketcher.Constraint("Tangent", 40, 2, 41, 1),
    Sketcher.Constraint("Tangent", 41, 2, 38, 1),
    Sketcher.Constraint("Tangent", 42, 2, 43, 1),
    Sketcher.Constraint("Tangent", 43, 2, 44, 1),
    Sketcher.Constraint("Tangent", 44, 2, 45, 1),
    Sketcher.Constraint("Tangent", 45, 2, 42, 1),
    Sketcher.Constraint("Tangent", 46, 2, 47, 1),
    Sketcher.Constraint("Tangent", 47, 2, 48, 1),
    Sketcher.Constraint("Tangent", 48, 2, 49, 1),
    Sketcher.Constraint("Tangent", 49, 2, 46, 1),
    Sketcher.Constraint("Tangent", 50, 2, 51, 1),
    Sketcher.Constraint("Tangent", 51, 2, 52, 1),
    Sketcher.Constraint("Tangent", 52, 2, 53, 1),
    Sketcher.Constraint("Tangent", 53, 2, 50, 1),
    Sketcher.Constraint("Tangent", 54, 2, 55, 1),
    Sketcher.Constraint("Tangent", 55, 2, 56, 1),
    Sketcher.Constraint("Tangent", 56, 2, 57, 1),
    Sketcher.Constraint("Tangent", 57, 2, 54, 1),
    Sketcher.Constraint("Tangent", 58, 2, 59, 1),
    Sketcher.Constraint("Tangent", 59, 2, 60, 1),
    Sketcher.Constraint("Tangent", 60, 2, 61, 1),
    Sketcher.Constraint("Tangent", 61, 2, 58, 1),
    Sketcher.Constraint("Tangent", 62, 2, 63, 1),
    Sketcher.Constraint("Tangent", 63, 2, 64, 1),
    Sketcher.Constraint("Tangent", 64, 2, 65, 1),
    Sketcher.Constraint("Tangent", 65, 2, 62, 1),
    Sketcher.Constraint("Tangent", 66, 2, 67, 1),
    Sketcher.Constraint("Tangent", 67, 2, 68, 1),
    Sketcher.Constraint("Tangent", 68, 2, 69, 1),
    Sketcher.Constraint("Tangent", 69, 2, 66, 1),
    Sketcher.Constraint("Tangent", 70, 2, 71, 1),
    Sketcher.Constraint("Tangent", 71, 2, 72, 1),
    Sketcher.Constraint("Tangent", 72, 2, 73, 1),
    Sketcher.Constraint("Tangent", 73, 2, 70, 1),
    Sketcher.Constraint("Tangent", 74, 2, 75, 1),
    Sketcher.Constraint("Tangent", 75, 2, 76, 1),
    Sketcher.Constraint("Tangent", 76, 2, 77, 1),
    Sketcher.Constraint("Tangent", 77, 2, 74, 1),
    Sketcher.Constraint("Tangent", 78, 2, 79, 1),
    Sketcher.Constraint("Tangent", 79, 2, 80, 1),
    Sketcher.Constraint("Tangent", 80, 2, 81, 1),
    Sketcher.Constraint("Tangent", 81, 2, 78, 1),
    Sketcher.Constraint("Tangent", 82, 2, 83, 1),
    Sketcher.Constraint("Tangent", 83, 2, 84, 1),
    Sketcher.Constraint("Tangent", 84, 2, 85, 1),
    Sketcher.Constraint("Tangent", 85, 2, 82, 1),
    Sketcher.Constraint("Horizontal", 2),
    Sketcher.Constraint("Horizontal", 4),
    Sketcher.Constraint("Horizontal", 6),
    Sketcher.Constraint("Horizontal", 8),
    Sketcher.Constraint("Horizontal", 10),
    Sketcher.Constraint("Horizontal", 12),
    Sketcher.Constraint("Horizontal", 14),
    Sketcher.Constraint("Horizontal", 16),
    Sketcher.Constraint("Horizontal", 18),
    Sketcher.Constraint("Horizontal", 20),
    Sketcher.Constraint("Horizontal", 22),
    Sketcher.Constraint("Horizontal", 24),
    Sketcher.Constraint("Horizontal", 26),
    Sketcher.Constraint("Horizontal", 28),
    Sketcher.Constraint("Horizontal", 30),
    Sketcher.Constraint("Horizontal", 32),
    Sketcher.Constraint("Horizontal", 34),
    Sketcher.Constraint("Horizontal", 36),
    Sketcher.Constraint("Horizontal", 38),
    Sketcher.Constraint("Horizontal", 40),
    Sketcher.Constraint("Horizontal", 42),
    Sketcher.Constraint("Horizontal", 44),
    Sketcher.Constraint("Vertical", 46),
    Sketcher.Constraint("Vertical", 48),
    Sketcher.Constraint("Vertical", 50),
    Sketcher.Constraint("Vertical", 52),
    Sketcher.Constraint("Vertical", 54),
    Sketcher.Constraint("Vertical", 56),
    Sketcher.Constraint("Vertical", 58),
    Sketcher.Constraint("Vertical", 60),
    Sketcher.Constraint("Vertical", 62),
    Sketcher.Constraint("Vertical", 64),
    Sketcher.Constraint("Vertical", 66),
    Sketcher.Constraint("Vertical", 68),
    Sketcher.Constraint("Vertical", 70),
    Sketcher.Constraint("Vertical", 72),
    Sketcher.Constraint("Vertical", 74),
    Sketcher.Constraint("Vertical", 76),
    Sketcher.Constraint("Horizontal", 78),
    Sketcher.Constraint("Horizontal", 80),
    Sketcher.Constraint("Horizontal", 82),
    Sketcher.Constraint("Horizontal", 84),
    Sketcher.Constraint("Equal", 0, 1),
    Sketcher.Constraint("Equal", 9, 11),
    Sketcher.Constraint("Equal", 13, 15),
    Sketcher.Constraint("Equal", 17, 19),
    Sketcher.Constraint("Equal", 21, 23),
    Sketcher.Constraint("Equal", 25, 27),
    Sketcher.Constraint("Equal", 29, 31),
    Sketcher.Constraint("Equal", 33, 35),
    Sketcher.Constraint("Equal", 37, 39),
    Sketcher.Constraint("Equal", 41, 43),
    Sketcher.Constraint("Equal", 45, 47),
    Sketcher.Constraint("Equal", 49, 51),
    Sketcher.Constraint("Equal", 53, 55),
    Sketcher.Constraint("Equal", 57, 59),
    Sketcher.Constraint("Equal", 61, 63),
    Sketcher.Constraint("Equal", 65, 67),
    Sketcher.Constraint("Equal", 69, 71),
    Sketcher.Constraint("Equal", 73, 75),
    Sketcher.Constraint("Equal", 77, 79),
    Sketcher.Constraint("Equal", 81, 83),
    Sketcher.Constraint("Horizontal", 9, 3, 11, 3),
    Sketcher.Constraint("Horizontal", 13, 3, 15, 3),
    Sketcher.Constraint("Horizontal", 17, 3, 19, 3),
    Sketcher.Constraint("Horizontal", 21, 3, 23, 3),
    Sketcher.Constraint("Horizontal", 25, 3, 27, 3),
    Sketcher.Constraint("Horizontal", 33, 3, 35, 3),
    Sketcher.Constraint("Horizontal", 37, 3, 39, 3),
    Sketcher.Constraint("Horizontal", 41, 3, 43, 3),
    Sketcher.Constraint("Horizontal", 51, 3, 63, 3),
    Sketcher.Constraint("Horizontal", 53, 3, 65, 3),
    Sketcher.Constraint("Horizontal", 47, 3, 67, 3),
    Sketcher.Constraint("Horizontal", 49, 3, 69, 3),
    Sketcher.Constraint("Horizontal", 61, 3, 71, 3),
    Sketcher.Constraint("Horizontal", 59, 3, 73, 3),
    Sketcher.Constraint("Horizontal", 57, 3, 75, 3),
    Sketcher.Constraint("Horizontal", 55, 3, 77, 3),
    Sketcher.Constraint("Horizontal", 45, 3, 79, 3),
    Sketcher.Constraint("Horizontal", 81, 3, 83, 3),
    Sketcher.Constraint("Vertical", 0, 3, 1, 3),
    Sketcher.Constraint("Vertical", 19, 3, 31, 3),
    Sketcher.Constraint("Vertical", 21, 3, 33, 3),
    Sketcher.Constraint("Vertical", 15, 3, 35, 3),
    Sketcher.Constraint("Vertical", 17, 3, 37, 3),
    Sketcher.Constraint("Vertical", 27, 3, 39, 3),
    Sketcher.Constraint("Vertical", 29, 3, 41, 3),
    Sketcher.Constraint("Vertical", 23, 3, 43, 3),
    Sketcher.Constraint("Vertical", 25, 3, 45, 3),
    Sketcher.Constraint("Vertical", 49, 3, 51, 3),
    Sketcher.Constraint("Vertical", 53, 3, 55, 3),
    Sketcher.Constraint("Vertical", 57, 3, 59, 3),
    Sketcher.Constraint("Vertical", 65, 3, 67, 3),
    Sketcher.Constraint("Vertical", 69, 3, 71, 3),
    Sketcher.Constraint("Vertical", 73, 3, 75, 3),
    Sketcher.Constraint("Vertical", 11, 3, 79, 3),
    Sketcher.Constraint("Vertical", 13, 3, 81, 3),
    Sketcher.Constraint("Vertical", 7, 3, 83, 3),
    Sketcher.Constraint("Vertical", 9, 3, 85, 3),
    Sketcher.Constraint("Equal", 8, 10),
    Sketcher.Constraint("Equal", 12, 14),
    Sketcher.Constraint("Equal", 16, 18),
    Sketcher.Constraint("Equal", 20, 22),
    Sketcher.Constraint("Equal", 24, 26),
    Sketcher.Constraint("Equal", 84, 46),
    Sketcher.Constraint("Equal", 48, 50),
    Sketcher.Constraint("Equal", 52, 54),
    Sketcher.Constraint("Equal", 56, 58),
    Sketcher.Constraint("Diameter", 0, 16.0),
    Sketcher.Constraint("Radius", 3, 11.0),
    Sketcher.Constraint("Radius", 7, 3.1),
    Sketcher.Constraint("DistanceX", 6, 1, 6, 2, 10.0),
    Sketcher.Constraint("DistanceX", 2, 2, 2, 1, 8.5),
    Sketcher.Constraint("DistanceX", -1, 1, 47, 3, 207.409201),
    Sketcher.Constraint("DistanceX", 63, 3, -1, 1, 134.590799),
    Sketcher.Constraint("DistanceY", -1, 1, 0, 3, 182.303218),
    Sketcher.Constraint("DistanceY", 1, 3, -1, 1, 129.796782),
    Sketcher.Constraint("DistanceY", 3, 3, -1, 1, 143.296782),
    Sketcher.Constraint("DistanceY", -1, 1, 7, 3, 201.703218),
    Sketcher.Constraint("DistanceX", -1, 1, 23, 3, 39.76714),
    Sketcher.Constraint("DistanceY", 31, 3, -1, 1, 170.896782),
    Sketcher.Constraint("DistanceY", -1, 1, 47, 3, 45.403218),
    Sketcher.Constraint("DistanceY", -1, 1, 51, 3, 135.903218),
    Sketcher.Constraint("DistanceY", 55, 3, -1, 1, 105.096782),
    Sketcher.Constraint("DistanceY", 59, 3, -1, 1, 14.596782),
    Sketcher.Constraint("DistanceX", -1, 1, 0, 3, 191.506904),
    Sketcher.Constraint("DistanceX", -1, 1, 3, 3, 107.006904),
    Sketcher.Constraint("DistanceX", -1, 1, 7, 3, 192.206904),
    Sketcher.Constraint("DistanceX", -1, 1, 11, 3, 142.206904),
    Sketcher.Constraint("DistanceX", 15, 3, -1, 1, 114.388158),
    Sketcher.Constraint("DistanceX", 19, 3, -1, 1, 174.388158),
    Sketcher.Constraint("DistanceX", 27, 3, -1, 1, 11.948393),
])
pocket1 = body.newObject("PartDesign::Pocket", "Pocket")
pocket1.Profile = sketch2
pocket1.Length = 4.5
doc.recompute()

chamfer = body.newObject("PartDesign::Chamfer", "Chamfer")
chamfer.Base = (pocket1, edges_at(pocket1, [
    (0, 205.909, -123.547),
    (0, 205.909, 157.453),
    (0, -136.091, 16.953),
    (0, -136.091, -123.547),
    (0, -136.091, 157.453),
    (0, 162.207, 201.753),
    (0, 8.909, 201.753),
    (0, -144.388, 198.553),
    (0, -144.388, -167.747),
    (0, 8.909, -170.947),
    (0, 162.207, -170.947),
    (0, 205.909, 16.953),
]))
chamfer.Size = 1.5

# Sketch on YZ plane
sketch3 = body.newObject("Sketcher::SketchObject", "Sketch002")
sketch3.AttachmentSupport = (doc.getObject("YZ_Plane"), [""])
sketch3.MapMode = "FlatFace"
sketch3.addGeometry([
    Part.LineSegment(App.Vector(-90.1, 184.2, 0), App.Vector(-118.1, 184.2, 0)),
    Part.ArcOfCircle(Part.Circle(App.Vector(-118.1, 186.2, 0), App.Vector(0, 0, 1), 2), math.radians(90), math.radians(270)),
    Part.LineSegment(App.Vector(-118.1, 188.2, 0), App.Vector(-90.1, 188.2, 0)),
    Part.ArcOfCircle(Part.Circle(App.Vector(-90.1, 186.2, 0), App.Vector(0, 0, 1), 2), math.radians(-90), math.radians(90)),
], False)
sketch3.addConstraint([
    Sketcher.Constraint("Tangent", 0, 2, 1, 2),
    Sketcher.Constraint("Tangent", 1, 1, 2, 1),
    Sketcher.Constraint("Tangent", 2, 2, 3, 2),
    Sketcher.Constraint("Tangent", 3, 1, 0, 1),
    Sketcher.Constraint("Horizontal", 0),
    Sketcher.Constraint("Horizontal", 2),
    Sketcher.Constraint("Radius", 1, 2.043586),
    Sketcher.Constraint("DistanceX", 1, 3, -1, 1, 118.090799),
    Sketcher.Constraint("DistanceX", 0, 2, 0, 1, 28.034618),
    Sketcher.Constraint("DistanceY", -1, 1, 1, 3, 186.200241),
])
pocket2 = body.newObject("PartDesign::Pocket", "Pocket001")
pocket2.Profile = sketch3
pocket2.Length = 6
pocket2.Reversed = True

doc.recompute()
